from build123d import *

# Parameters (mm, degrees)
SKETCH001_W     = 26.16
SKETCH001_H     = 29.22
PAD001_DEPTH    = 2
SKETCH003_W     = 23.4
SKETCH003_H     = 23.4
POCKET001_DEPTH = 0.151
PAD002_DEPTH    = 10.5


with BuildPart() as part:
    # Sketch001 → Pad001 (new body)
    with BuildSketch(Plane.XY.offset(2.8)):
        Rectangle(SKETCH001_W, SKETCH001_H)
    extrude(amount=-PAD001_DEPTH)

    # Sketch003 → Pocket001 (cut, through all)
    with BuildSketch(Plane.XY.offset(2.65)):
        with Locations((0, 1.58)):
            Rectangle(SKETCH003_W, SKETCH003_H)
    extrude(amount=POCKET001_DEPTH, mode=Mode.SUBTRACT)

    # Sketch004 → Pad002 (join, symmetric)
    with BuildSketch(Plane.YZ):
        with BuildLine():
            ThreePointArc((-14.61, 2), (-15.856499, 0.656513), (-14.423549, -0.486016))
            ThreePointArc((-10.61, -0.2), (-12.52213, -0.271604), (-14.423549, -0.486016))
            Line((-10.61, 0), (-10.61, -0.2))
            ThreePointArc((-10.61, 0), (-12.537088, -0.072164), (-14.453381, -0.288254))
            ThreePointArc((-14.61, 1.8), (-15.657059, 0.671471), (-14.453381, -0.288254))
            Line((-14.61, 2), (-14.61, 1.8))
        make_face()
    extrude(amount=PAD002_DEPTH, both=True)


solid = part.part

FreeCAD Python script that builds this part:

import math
import FreeCAD as App
import Part
import Sketcher


def add_polygon(sketch, points):
    """Adds a closed chain of lines whose ends are joined by coincident constraints."""
    first, n = sketch.GeometryCount, len(points)
    for a, b in zip(points, points[1:] + points[:1]):
        sketch.addGeometry(Part.LineSegment(App.Vector(*a, 0), App.Vector(*b, 0)), False)
    for i in range(n):
        sketch.addConstraint(Sketcher.Constraint("Coincident", first + i, 2, first + (i + 1) % n, 1))

doc = App.newDocument("Part")
params = doc.addObject("Spreadsheet::Sheet", "Params")
for row, (alias, value) in enumerate([
    ("sketch1_width", "26.16 mm"),
    ("sketch1_height", "29.22 mm"),
    ("pad1_length", "2 mm"),
    ("sketch2_width", "23.4 mm"),
    ("sketch3_radius", "1.25 mm"),
    ("sketch3_radius2", "1.05 mm"),
    ("pad2_length", "21 mm"),
], start=1):
    params.set(f"A{row}", alias)
    params.set(f"B{row}", "=" + value)
    params.setAlias(f"B{row}", alias)

body = doc.addObject("PartDesign::Body", "Body")

sketch1 = body.newObject("Sketcher::SketchObject", "Sketch")
sketch1.AttachmentSupport = (doc.getObject("XY_Plane"), [""])
sketch1.MapMode = "FlatFace"
sketch1.AttachmentOffset = App.Placement(App.Vector(0, 0, 2.8), App.Rotation())
add_polygon(sketch1, [(-13, 15), (-13, -15), (13, -15), (13, 15)])
sketch1.addConstraint(Sketcher.Constraint("Vertical", 0))
sketch1.addConstraint(Sketcher.Constraint("Horizontal", 1))
sketch1.addConstraint(Sketcher.Constraint("Vertical", 2))
sketch1.addConstraint(Sketcher.Constraint("Horizontal", 3))
sketch1.addConstraint(Sketcher.Constraint("Symmetric", 0, 2, 2, 2, -1, 1))
sketch1.addConstraint(Sketcher.Constraint("DistanceX", 1, 1, 1, 2, 26.16))
sketch1.addConstraint(Sketcher.Constraint("DistanceY", 0, 2, 0, 1, 29.22))
sketch1.setExpression("Constraints[9]", "Params.sketch1_width")
sketch1.setExpression("Constraints[10]", "Params.sketch1_height")
pad1 = body.newObject("PartDesign::Pad", "Pad")
pad1.Profile = sketch1
pad1.setExpression("Length", "Params.pad1_length")
pad1.Reversed = True

sketch2 = body.newObject("Sketcher::SketchObject", "Sketch001")
sketch2.AttachmentSupport = (doc.getObject("XY_Plane"), [""])
sketch2.MapMode = "FlatFace"
sketch2.AttachmentOffset = App.Placement(App.Vector(0, 0, 2.65), App.Rotation())
add_polygon(sketch2, [(-12, 13), (-12, -10), (12, -10), (12, 13)])
sketch2.addConstraint(Sketcher.Constraint("Vertical", 0))
sketch2.addConstraint(Sketcher.Constraint("Horizontal", 1))
sketch2.addConstraint(Sketcher.Constraint("Vertical", 2))
sketch2.addConstraint(Sketcher.Constraint("Horizontal", 3))
sketch2.addConstraint(Sketcher.Constraint("Equal", 3, 0))
sketch2.addConstraint(Sketcher.Constraint("DistanceX", 1, 1, 1, 2, 23.4))
sketch2.addConstraint(Sketcher.Constraint("DistanceX", 0, 2, -1, 1, 11.7))
sketch2.addConstraint(Sketcher.Constraint("DistanceY", 0, 2, -1, 1, 10.12))
sketch2.setExpression("Constraints[9]", "Params.sketch2_width")
pocket1 = body.newObject("PartDesign::Pocket", "Pocket")
pocket1.Profile = sketch2
pocket1.Type = "ThroughAll"
pocket1.Reversed = True

sketch3 = body.newObject("Sketcher::SketchObject", "Sketch002")
sketch3.AttachmentSupport = (doc.getObject("YZ_Plane"), [""])
sketch3.MapMode = "FlatFace"
sketch3.addGeometry(Part.ArcOfCircle(Part.Circle(App.Vector(-14.61, 0.75, 0), App.Vector(0, 0, 1), 1.25), math.radians(90), math.radians(279)), False)
sketch3.addGeometry(Part.ArcOfCircle(Part.Circle(App.Vector(-10.61, -25.77, 0), App.Vector(0, 0, 1), 25.57), math.radians(90), math.radians(98.58)), False)
sketch3.addGeometry(Part.LineSegment(App.Vector(-10.61, -0.2, 0), App.Vector(-10.61, 0, 0)), False)
sketch3.addGeometry(Part.ArcOfCircle(Part.Circle(App.Vector(-10.61, -25.77, 0), App.Vector(0, 0, 1), 25.77), math.radians(90), math.radians(98.58)), False)
sketch3.addGeometry(Part.ArcOfCircle(Part.Circle(App.Vector(-14.61, 0.75, 0), App.Vector(0, 0, 1), 1.05), math.radians(90), math.radians(279)), False)
sketch3.addGeometry(Part.LineSegment(App.Vector(-14.61, 1.8, 0), App.Vector(-14.61, 2, 0)), False)
sketch3.addConstraint(Sketcher.Constraint("Tangent", 0, 2, 1, 2))
sketch3.addConstraint(Sketcher.Constraint("Coincident", 1, 1, 2, 1))
sketch3.addConstraint(Sketcher.Constraint("Coincident", 2, 2, 3, 1))
sketch3.addConstraint(Sketcher.Constraint("Tangent", 3, 2, 4, 2))
sketch3.addConstraint(Sketcher.Constraint("Coincident", 4, 1, 5, 1))
sketch3.addConstraint(Sketcher.Constraint("Coincident", 5, 2, 0, 1))
sketch3.addConstraint(Sketcher.Constraint("Vertical", 2))
sketch3.addConstraint(Sketcher.Constraint("Vertical", 5))
sketch3.addConstraint(Sketcher.Constraint("Coincident", 4, 3, 0, 3))
sketch3.addConstraint(Sketcher.Constraint("PointOnObject", 2, 2, -1))
sketch3.addConstraint(Sketcher.Constraint("Vertical", 0, 3, 4, 1))
sketch3.addConstraint(Sketcher.Constraint("Equal", 2, 5))
sketch3.addConstraint(Sketcher.Constraint("Radius", 0, 1.25))
sketch3.addConstraint(Sketcher.Constraint("Radius", 4, 1.05))
sketch3.addConstraint(Sketcher.Constraint("DistanceY", -1, 1, 5, 2, 2.0))
sketch3.addConstraint(Sketcher.Constraint("DistanceX", 4, 3, 1, 1, 4.0))
sketch3.addConstraint(Sketcher.Constraint("DistanceX", 0, 3, -1, 1, 14.61))
sketch3.addConstraint(Sketcher.Constraint("Radius", 1, 25.566582))
sketch3.addConstraint(Sketcher.Constraint("Radius", 3, 25.766424))
sketch3.setExpression("Constraints[12]", "Params.sketch3_radius")
sketch3.setExpression("Constraints[13]", "Params.sketch3_radius2")
pad2 = body.newObject("PartDesign::Pad", "Pad001")
pad2.Profile = sketch3
pad2.setExpression("Length", "Params.pad2_length")
pad2.Midplane = True

doc.recompute()
